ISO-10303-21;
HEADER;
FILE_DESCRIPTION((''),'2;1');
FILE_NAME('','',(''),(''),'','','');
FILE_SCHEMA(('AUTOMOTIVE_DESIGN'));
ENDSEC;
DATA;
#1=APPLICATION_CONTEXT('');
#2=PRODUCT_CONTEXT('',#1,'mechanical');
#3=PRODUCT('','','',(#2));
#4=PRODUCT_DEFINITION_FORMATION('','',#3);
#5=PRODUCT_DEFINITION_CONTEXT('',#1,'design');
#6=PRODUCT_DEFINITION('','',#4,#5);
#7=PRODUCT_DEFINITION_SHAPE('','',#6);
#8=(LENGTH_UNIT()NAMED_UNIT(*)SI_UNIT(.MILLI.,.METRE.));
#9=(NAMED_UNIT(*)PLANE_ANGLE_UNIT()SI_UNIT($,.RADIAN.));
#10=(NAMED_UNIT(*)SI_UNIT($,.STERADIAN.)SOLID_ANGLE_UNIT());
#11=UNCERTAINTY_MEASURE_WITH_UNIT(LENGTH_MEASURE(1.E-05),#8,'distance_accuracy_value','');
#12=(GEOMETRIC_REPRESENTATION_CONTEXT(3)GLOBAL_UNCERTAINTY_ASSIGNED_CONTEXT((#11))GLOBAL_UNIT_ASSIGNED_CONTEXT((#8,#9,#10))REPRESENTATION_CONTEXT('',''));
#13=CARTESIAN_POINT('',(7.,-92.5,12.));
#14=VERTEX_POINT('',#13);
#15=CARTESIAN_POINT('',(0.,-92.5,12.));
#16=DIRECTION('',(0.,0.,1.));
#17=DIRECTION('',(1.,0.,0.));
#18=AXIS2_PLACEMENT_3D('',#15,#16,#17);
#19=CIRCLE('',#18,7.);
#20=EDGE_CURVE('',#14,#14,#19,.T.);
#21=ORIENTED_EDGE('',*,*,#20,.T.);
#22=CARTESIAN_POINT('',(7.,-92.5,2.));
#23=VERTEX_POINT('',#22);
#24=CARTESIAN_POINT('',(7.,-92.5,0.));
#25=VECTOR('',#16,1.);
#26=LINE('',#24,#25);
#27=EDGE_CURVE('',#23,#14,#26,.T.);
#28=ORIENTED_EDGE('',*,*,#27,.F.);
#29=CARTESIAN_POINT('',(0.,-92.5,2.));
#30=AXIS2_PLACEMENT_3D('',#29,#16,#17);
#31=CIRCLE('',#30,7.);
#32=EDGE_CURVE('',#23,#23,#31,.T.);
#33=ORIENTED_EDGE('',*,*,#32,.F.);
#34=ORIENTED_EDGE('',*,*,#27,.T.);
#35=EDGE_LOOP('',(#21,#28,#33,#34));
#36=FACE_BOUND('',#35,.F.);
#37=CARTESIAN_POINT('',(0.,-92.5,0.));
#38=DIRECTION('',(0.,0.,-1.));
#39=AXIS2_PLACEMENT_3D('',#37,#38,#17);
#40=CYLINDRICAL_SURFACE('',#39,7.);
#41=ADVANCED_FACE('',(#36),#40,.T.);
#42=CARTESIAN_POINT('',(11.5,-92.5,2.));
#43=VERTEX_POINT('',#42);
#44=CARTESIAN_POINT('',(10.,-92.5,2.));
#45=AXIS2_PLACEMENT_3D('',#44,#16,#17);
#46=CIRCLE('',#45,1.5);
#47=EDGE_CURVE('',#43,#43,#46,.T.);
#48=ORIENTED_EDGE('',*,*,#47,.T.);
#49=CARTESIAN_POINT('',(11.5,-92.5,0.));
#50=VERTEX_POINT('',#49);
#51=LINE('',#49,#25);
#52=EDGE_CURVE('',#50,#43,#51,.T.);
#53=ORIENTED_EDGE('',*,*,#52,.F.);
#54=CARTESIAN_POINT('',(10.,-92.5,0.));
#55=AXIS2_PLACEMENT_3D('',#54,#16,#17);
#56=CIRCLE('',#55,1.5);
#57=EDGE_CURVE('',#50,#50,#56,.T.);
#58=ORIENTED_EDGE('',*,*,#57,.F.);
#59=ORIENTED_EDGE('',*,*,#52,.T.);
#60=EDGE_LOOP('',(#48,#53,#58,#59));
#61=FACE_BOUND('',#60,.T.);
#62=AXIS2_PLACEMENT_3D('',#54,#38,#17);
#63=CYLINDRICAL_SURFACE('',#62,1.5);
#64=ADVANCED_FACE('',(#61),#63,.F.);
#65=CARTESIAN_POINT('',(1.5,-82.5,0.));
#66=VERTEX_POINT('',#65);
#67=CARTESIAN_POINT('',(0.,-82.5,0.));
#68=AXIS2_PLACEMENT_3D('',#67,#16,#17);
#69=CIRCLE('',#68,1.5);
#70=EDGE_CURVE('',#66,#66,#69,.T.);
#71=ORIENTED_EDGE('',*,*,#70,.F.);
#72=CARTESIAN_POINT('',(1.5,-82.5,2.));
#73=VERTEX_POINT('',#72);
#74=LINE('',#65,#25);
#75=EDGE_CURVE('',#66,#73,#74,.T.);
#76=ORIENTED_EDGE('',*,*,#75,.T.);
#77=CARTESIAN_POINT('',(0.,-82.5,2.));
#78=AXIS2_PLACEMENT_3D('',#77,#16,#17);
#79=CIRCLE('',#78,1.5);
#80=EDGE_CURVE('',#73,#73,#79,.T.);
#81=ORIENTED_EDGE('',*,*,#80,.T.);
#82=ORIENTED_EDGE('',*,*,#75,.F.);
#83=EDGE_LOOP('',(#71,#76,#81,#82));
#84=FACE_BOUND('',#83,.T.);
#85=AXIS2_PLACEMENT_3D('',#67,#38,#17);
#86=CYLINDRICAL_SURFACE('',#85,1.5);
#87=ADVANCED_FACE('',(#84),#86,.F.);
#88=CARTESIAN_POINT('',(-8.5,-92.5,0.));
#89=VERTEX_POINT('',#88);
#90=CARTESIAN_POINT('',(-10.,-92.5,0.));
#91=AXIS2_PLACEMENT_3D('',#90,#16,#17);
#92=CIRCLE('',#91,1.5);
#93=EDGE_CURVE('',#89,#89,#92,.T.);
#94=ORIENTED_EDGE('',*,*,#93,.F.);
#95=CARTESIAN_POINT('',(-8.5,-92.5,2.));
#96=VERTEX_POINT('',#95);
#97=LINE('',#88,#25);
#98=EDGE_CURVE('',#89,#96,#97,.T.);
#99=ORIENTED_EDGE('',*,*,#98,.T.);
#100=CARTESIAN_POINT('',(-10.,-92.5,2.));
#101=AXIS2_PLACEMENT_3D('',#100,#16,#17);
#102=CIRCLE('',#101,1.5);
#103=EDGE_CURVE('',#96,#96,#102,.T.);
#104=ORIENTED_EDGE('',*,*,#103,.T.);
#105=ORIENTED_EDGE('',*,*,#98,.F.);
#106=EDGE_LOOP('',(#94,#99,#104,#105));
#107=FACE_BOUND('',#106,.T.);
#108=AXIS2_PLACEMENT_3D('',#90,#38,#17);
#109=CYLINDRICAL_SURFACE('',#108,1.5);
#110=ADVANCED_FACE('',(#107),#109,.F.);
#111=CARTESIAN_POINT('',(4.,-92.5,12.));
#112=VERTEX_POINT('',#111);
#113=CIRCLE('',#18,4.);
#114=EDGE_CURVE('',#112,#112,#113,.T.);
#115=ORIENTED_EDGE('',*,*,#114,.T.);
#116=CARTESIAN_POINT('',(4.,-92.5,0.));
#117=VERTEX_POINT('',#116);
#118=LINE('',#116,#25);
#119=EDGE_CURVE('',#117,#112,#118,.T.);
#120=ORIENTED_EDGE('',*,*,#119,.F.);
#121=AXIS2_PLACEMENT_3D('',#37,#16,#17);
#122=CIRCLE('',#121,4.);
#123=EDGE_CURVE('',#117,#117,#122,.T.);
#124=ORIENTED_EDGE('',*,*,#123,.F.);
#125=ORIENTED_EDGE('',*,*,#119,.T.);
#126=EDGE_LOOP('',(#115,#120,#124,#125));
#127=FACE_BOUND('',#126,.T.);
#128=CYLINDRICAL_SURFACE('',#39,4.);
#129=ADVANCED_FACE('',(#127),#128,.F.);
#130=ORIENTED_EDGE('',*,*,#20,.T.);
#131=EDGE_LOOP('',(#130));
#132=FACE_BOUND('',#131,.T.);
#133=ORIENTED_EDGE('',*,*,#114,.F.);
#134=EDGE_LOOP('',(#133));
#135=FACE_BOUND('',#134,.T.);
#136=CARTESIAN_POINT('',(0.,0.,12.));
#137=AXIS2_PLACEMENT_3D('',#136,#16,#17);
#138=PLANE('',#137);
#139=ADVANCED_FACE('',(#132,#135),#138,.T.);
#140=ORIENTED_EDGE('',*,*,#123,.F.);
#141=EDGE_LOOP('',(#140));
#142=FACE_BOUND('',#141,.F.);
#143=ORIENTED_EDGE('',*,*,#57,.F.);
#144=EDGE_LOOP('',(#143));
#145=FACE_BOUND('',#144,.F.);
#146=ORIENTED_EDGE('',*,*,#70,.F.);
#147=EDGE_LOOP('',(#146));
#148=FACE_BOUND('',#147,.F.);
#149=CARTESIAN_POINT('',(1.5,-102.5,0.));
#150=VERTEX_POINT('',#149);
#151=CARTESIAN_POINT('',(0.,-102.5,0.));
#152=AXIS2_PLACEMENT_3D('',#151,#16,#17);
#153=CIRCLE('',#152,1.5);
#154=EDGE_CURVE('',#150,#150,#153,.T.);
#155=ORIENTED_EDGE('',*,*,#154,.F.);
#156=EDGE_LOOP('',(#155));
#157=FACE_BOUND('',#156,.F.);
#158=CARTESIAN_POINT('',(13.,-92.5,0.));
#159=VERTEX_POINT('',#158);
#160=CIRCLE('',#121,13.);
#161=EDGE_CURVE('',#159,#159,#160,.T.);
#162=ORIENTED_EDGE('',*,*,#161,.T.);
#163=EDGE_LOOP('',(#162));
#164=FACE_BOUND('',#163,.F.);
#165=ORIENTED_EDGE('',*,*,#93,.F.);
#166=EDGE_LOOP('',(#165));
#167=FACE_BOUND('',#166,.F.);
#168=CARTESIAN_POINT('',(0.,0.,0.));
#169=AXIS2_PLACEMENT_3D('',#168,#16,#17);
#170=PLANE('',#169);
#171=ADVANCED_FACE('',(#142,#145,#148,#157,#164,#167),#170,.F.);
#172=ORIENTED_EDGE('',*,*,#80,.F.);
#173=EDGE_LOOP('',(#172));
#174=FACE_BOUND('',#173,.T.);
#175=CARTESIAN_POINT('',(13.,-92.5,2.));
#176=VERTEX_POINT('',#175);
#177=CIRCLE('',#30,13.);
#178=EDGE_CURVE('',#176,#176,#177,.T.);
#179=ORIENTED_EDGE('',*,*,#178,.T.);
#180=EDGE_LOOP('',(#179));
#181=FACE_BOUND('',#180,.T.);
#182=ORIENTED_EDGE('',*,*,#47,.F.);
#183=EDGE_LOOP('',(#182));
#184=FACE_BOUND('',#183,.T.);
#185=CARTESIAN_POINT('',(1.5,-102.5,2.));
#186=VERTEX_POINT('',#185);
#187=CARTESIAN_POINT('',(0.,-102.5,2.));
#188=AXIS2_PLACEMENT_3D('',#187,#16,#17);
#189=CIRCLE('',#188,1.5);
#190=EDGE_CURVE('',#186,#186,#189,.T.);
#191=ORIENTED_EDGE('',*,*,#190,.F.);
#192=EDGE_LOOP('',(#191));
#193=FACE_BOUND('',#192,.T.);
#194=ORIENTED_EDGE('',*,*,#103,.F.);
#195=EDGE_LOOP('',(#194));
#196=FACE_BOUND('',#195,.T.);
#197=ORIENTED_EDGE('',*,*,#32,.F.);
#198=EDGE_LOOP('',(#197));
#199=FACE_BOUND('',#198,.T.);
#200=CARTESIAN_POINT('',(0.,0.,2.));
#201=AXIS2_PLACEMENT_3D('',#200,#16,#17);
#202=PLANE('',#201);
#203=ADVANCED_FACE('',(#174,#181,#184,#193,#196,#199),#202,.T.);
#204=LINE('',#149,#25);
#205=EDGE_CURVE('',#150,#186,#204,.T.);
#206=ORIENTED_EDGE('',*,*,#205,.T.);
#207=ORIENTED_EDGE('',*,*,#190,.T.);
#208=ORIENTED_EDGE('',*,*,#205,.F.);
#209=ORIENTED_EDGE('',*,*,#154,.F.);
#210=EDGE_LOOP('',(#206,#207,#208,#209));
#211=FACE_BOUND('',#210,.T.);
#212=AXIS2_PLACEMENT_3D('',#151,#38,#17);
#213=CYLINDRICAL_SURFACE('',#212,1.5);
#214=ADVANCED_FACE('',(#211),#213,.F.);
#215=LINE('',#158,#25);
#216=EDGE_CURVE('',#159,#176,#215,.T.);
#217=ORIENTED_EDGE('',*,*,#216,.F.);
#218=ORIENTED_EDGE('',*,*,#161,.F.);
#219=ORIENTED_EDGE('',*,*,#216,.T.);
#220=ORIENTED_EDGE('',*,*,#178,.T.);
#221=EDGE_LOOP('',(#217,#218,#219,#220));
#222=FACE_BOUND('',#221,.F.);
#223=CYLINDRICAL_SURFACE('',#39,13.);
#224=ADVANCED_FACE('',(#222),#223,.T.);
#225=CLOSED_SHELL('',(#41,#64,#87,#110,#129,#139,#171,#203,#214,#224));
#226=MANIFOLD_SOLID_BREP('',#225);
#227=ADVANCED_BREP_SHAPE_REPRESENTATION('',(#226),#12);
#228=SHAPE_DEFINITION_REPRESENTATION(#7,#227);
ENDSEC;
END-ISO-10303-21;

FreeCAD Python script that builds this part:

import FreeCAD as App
import Part
import Sketcher

V = App.Vector
Q = App.Units.Quantity

doc = App.newDocument("Part")
body = doc.addObject("PartDesign::Body", "Body")

# Sketch on XY plane
sketch1 = body.newObject("Sketcher::SketchObject", "Sketch")
sketch1.AttachmentSupport = (doc.getObject("XY_Plane"), [""])
sketch1.MapMode = "FlatFace"
sketch1.addGeometry([
    Part.Circle(V(0, -92.5, 0), V(0, 0, 1), 13),  # 0
    Part.Circle(V(0, -102.5, 0), V(0, 0, 1), 1.5),  # 1
    Part.Circle(V(-10, -92.5, 0), V(0, 0, 1), 1.5),  # 2
    Part.Circle(V(0, -92.5, 0), V(0, 0, 1), 7),  # 3
    Part.Circle(V(10, -92.5, 0), V(0, 0, 1), 1.5),  # 4
    Part.Circle(V(0, -82.5, 0), V(0, 0, 1), 1.5),  # 5
], False)
sketch1.addConstraint([
    Sketcher.Constraint("Coincident", 3, 3, 0, 3),
    Sketcher.Constraint("Equal", 1, 2),
    Sketcher.Constraint("Equal", 2, 4),
    Sketcher.Constraint("Equal", 4, 5),
    Sketcher.Constraint("Symmetric", 2, 3, 4, 3, -2),
    Sketcher.Constraint("PointOnObject", 0, 3, -2),
    Sketcher.Constraint("PointOnObject", 1, 3, -2),
    Sketcher.Constraint("PointOnObject", 5, 3, -2),
    Sketcher.Constraint("Horizontal", 0, 3, 2, 3),
    Sketcher.Constraint("Diameter", 0, Q("26 mm")),
    Sketcher.Constraint("Diameter", 3, Q("14 mm")),
    Sketcher.Constraint("Diameter", 1, Q("3 mm")),
    Sketcher.Constraint("DistanceX", 2, 3, -1, 1, Q("10 mm")),
    Sketcher.Constraint("DistanceY", 1, 3, 0, 3, Q("10 mm")),
    Sketcher.Constraint("DistanceY", 0, 3, 5, 3, Q("10 mm")),
    Sketcher.Constraint("DistanceY", 0, 3, -1, 1, Q("92.5 mm")),
])
pad1 = body.newObject("PartDesign::Pad", "Pad")
pad1.Profile = sketch1
pad1.Length = 2

# Sketch on XY plane
sketch2 = body.newObject("Sketcher::SketchObject", "Sketch001")
sketch2.AttachmentSupport = (doc.getObject("XY_Plane"), [""])
sketch2.MapMode = "FlatFace"
sketch2.addGeometry([
    Part.Circle(V(0, -92.5, 0), V(0, 0, 1), 7),
    Part.Circle(V(0, -92.5, 0), V(0, 0, 1), 4),
], False)
sketch2.addConstraint([
    Sketcher.Constraint("Coincident", 1, 3, 0, 3),
    Sketcher.Constraint("PointOnObject", 0, 3, -2),
    Sketcher.Constraint("Diameter", 0, Q("14 mm")),
    Sketcher.Constraint("Diameter", 1, Q("8 mm")),
    Sketcher.Constraint("DistanceY", 0, 3, -1, 1, Q("92.5 mm")),
])
pad2 = body.newObject("PartDesign::Pad", "Pad001")
pad2.Profile = sketch2
pad2.Length = 12

doc.recompute()
